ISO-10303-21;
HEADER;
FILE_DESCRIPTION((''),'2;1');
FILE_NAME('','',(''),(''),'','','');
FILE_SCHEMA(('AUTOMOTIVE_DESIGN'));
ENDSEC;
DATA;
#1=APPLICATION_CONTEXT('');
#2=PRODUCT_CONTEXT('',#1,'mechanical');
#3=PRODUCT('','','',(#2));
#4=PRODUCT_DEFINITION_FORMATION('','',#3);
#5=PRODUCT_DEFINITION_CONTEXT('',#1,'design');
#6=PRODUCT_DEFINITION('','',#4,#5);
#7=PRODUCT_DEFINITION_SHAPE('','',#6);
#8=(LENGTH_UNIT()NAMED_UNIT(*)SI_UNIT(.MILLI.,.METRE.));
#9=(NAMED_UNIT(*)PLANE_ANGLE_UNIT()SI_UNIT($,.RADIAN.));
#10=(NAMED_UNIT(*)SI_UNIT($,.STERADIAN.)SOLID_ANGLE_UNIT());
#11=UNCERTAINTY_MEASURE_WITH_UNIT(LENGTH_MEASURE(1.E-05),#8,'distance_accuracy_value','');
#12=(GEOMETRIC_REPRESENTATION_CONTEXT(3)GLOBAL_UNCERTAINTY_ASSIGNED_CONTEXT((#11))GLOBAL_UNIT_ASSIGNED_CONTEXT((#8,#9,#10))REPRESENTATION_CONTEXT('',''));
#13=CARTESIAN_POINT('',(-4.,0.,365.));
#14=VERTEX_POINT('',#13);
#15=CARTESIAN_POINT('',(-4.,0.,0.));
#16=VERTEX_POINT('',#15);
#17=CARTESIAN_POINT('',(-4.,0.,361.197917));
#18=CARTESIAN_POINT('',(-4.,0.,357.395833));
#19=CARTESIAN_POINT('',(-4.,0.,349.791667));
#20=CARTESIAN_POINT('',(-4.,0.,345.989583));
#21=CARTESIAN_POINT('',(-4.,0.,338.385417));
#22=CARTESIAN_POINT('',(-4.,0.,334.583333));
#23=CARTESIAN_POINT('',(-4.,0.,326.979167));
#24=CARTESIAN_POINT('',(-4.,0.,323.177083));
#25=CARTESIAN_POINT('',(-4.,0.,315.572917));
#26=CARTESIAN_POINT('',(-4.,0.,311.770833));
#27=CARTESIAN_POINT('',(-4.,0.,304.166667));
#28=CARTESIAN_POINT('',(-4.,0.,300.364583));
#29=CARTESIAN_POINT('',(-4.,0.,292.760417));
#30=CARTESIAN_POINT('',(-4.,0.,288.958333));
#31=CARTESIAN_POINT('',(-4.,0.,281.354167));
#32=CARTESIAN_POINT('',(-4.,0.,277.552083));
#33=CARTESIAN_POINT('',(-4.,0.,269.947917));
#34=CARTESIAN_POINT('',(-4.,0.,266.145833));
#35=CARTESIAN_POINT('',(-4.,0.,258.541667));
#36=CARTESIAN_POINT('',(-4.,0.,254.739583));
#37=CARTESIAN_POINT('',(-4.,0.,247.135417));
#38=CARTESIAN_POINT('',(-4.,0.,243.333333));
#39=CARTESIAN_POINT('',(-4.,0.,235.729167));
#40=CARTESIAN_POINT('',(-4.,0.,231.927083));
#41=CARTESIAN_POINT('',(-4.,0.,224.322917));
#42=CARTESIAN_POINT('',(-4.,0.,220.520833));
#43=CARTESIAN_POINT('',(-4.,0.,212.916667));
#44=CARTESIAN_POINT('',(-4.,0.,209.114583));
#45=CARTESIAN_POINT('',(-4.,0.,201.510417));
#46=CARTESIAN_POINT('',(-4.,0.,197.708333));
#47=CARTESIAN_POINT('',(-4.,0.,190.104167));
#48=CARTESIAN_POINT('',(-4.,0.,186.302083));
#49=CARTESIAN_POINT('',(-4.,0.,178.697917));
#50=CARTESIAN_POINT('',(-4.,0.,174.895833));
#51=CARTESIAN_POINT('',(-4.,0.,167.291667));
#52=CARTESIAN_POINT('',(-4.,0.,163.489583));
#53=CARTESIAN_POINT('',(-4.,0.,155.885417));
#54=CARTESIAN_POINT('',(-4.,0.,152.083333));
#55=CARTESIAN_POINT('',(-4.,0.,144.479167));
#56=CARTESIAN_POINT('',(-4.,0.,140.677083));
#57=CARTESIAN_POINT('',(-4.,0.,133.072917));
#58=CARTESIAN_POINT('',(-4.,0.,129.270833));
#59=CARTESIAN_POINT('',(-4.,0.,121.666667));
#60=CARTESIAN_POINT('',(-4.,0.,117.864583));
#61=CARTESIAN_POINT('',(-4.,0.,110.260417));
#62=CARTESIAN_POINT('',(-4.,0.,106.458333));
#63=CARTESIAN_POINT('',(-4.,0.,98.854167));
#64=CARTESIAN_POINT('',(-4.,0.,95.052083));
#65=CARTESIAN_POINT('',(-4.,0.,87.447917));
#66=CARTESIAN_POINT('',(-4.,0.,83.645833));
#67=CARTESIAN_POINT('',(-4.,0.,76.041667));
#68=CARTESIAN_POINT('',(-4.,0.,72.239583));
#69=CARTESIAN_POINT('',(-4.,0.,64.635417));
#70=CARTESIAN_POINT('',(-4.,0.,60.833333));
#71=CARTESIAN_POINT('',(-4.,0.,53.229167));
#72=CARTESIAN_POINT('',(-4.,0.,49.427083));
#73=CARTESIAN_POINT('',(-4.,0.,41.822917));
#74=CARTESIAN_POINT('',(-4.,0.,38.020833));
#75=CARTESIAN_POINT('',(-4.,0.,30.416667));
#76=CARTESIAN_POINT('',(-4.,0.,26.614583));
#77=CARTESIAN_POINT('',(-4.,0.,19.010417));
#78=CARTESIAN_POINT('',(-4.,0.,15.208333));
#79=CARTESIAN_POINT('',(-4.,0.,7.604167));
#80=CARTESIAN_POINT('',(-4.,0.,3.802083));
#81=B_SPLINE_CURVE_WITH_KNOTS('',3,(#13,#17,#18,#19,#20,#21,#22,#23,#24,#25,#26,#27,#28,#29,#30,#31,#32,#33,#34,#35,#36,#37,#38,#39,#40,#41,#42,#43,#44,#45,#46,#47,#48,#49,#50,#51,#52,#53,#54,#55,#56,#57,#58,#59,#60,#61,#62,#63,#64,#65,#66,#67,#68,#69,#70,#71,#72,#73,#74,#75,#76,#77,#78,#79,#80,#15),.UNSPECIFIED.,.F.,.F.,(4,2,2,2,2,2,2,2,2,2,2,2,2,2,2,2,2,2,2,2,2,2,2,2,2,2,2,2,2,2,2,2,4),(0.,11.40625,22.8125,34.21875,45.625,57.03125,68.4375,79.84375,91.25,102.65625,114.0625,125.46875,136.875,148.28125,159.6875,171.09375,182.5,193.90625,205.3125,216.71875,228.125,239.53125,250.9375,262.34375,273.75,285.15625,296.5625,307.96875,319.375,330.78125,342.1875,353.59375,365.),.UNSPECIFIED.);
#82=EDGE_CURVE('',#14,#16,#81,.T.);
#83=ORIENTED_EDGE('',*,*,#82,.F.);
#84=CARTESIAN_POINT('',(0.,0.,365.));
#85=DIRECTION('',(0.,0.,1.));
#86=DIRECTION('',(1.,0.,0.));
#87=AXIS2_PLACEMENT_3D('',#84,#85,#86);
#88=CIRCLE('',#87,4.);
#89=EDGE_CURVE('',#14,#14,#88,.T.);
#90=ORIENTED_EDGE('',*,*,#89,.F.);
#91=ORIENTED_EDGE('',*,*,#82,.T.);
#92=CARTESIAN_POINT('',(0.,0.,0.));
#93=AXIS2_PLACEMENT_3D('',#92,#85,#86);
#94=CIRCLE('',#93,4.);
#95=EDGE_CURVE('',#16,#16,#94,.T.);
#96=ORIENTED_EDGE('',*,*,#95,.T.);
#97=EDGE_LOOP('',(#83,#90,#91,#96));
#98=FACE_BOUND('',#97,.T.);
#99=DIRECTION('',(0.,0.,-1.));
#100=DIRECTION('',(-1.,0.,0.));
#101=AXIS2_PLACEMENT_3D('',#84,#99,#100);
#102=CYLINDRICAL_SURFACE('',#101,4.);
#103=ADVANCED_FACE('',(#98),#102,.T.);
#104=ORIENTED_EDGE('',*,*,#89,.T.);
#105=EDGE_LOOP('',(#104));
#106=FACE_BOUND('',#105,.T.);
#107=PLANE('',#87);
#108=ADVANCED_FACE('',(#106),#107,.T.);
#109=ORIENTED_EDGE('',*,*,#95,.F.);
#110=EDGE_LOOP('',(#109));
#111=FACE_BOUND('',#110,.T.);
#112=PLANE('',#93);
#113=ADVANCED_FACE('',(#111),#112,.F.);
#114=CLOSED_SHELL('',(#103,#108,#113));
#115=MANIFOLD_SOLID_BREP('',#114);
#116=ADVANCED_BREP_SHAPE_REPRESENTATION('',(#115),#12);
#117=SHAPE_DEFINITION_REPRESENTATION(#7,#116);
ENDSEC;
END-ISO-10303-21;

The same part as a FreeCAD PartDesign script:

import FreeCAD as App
import Part
import Sketcher

V = App.Vector
Q = App.Units.Quantity

doc = App.newDocument("Part")
body = doc.addObject("PartDesign::Body", "Body")

sketch1 = body.newObject("Sketcher::SketchObject", "Sketch")
sketch1.AttachmentSupport = (doc.getObject("XY_Plane"), [""])
sketch1.MapMode = "FlatFace"
sketch1.addGeometry(Part.Circle(V(0, 0, 0), V(0, 0, 1), 4), False)
sketch1.addConstraint([
    Sketcher.Constraint("Coincident", 0, 3, -1, 1),
    Sketcher.Constraint("Diameter", 0, Q("8 mm")),
])
pad1 = body.newObject("PartDesign::Pad", "Pad")
pad1.Profile = sketch1
pad1.Length = 365

doc.recompute()
